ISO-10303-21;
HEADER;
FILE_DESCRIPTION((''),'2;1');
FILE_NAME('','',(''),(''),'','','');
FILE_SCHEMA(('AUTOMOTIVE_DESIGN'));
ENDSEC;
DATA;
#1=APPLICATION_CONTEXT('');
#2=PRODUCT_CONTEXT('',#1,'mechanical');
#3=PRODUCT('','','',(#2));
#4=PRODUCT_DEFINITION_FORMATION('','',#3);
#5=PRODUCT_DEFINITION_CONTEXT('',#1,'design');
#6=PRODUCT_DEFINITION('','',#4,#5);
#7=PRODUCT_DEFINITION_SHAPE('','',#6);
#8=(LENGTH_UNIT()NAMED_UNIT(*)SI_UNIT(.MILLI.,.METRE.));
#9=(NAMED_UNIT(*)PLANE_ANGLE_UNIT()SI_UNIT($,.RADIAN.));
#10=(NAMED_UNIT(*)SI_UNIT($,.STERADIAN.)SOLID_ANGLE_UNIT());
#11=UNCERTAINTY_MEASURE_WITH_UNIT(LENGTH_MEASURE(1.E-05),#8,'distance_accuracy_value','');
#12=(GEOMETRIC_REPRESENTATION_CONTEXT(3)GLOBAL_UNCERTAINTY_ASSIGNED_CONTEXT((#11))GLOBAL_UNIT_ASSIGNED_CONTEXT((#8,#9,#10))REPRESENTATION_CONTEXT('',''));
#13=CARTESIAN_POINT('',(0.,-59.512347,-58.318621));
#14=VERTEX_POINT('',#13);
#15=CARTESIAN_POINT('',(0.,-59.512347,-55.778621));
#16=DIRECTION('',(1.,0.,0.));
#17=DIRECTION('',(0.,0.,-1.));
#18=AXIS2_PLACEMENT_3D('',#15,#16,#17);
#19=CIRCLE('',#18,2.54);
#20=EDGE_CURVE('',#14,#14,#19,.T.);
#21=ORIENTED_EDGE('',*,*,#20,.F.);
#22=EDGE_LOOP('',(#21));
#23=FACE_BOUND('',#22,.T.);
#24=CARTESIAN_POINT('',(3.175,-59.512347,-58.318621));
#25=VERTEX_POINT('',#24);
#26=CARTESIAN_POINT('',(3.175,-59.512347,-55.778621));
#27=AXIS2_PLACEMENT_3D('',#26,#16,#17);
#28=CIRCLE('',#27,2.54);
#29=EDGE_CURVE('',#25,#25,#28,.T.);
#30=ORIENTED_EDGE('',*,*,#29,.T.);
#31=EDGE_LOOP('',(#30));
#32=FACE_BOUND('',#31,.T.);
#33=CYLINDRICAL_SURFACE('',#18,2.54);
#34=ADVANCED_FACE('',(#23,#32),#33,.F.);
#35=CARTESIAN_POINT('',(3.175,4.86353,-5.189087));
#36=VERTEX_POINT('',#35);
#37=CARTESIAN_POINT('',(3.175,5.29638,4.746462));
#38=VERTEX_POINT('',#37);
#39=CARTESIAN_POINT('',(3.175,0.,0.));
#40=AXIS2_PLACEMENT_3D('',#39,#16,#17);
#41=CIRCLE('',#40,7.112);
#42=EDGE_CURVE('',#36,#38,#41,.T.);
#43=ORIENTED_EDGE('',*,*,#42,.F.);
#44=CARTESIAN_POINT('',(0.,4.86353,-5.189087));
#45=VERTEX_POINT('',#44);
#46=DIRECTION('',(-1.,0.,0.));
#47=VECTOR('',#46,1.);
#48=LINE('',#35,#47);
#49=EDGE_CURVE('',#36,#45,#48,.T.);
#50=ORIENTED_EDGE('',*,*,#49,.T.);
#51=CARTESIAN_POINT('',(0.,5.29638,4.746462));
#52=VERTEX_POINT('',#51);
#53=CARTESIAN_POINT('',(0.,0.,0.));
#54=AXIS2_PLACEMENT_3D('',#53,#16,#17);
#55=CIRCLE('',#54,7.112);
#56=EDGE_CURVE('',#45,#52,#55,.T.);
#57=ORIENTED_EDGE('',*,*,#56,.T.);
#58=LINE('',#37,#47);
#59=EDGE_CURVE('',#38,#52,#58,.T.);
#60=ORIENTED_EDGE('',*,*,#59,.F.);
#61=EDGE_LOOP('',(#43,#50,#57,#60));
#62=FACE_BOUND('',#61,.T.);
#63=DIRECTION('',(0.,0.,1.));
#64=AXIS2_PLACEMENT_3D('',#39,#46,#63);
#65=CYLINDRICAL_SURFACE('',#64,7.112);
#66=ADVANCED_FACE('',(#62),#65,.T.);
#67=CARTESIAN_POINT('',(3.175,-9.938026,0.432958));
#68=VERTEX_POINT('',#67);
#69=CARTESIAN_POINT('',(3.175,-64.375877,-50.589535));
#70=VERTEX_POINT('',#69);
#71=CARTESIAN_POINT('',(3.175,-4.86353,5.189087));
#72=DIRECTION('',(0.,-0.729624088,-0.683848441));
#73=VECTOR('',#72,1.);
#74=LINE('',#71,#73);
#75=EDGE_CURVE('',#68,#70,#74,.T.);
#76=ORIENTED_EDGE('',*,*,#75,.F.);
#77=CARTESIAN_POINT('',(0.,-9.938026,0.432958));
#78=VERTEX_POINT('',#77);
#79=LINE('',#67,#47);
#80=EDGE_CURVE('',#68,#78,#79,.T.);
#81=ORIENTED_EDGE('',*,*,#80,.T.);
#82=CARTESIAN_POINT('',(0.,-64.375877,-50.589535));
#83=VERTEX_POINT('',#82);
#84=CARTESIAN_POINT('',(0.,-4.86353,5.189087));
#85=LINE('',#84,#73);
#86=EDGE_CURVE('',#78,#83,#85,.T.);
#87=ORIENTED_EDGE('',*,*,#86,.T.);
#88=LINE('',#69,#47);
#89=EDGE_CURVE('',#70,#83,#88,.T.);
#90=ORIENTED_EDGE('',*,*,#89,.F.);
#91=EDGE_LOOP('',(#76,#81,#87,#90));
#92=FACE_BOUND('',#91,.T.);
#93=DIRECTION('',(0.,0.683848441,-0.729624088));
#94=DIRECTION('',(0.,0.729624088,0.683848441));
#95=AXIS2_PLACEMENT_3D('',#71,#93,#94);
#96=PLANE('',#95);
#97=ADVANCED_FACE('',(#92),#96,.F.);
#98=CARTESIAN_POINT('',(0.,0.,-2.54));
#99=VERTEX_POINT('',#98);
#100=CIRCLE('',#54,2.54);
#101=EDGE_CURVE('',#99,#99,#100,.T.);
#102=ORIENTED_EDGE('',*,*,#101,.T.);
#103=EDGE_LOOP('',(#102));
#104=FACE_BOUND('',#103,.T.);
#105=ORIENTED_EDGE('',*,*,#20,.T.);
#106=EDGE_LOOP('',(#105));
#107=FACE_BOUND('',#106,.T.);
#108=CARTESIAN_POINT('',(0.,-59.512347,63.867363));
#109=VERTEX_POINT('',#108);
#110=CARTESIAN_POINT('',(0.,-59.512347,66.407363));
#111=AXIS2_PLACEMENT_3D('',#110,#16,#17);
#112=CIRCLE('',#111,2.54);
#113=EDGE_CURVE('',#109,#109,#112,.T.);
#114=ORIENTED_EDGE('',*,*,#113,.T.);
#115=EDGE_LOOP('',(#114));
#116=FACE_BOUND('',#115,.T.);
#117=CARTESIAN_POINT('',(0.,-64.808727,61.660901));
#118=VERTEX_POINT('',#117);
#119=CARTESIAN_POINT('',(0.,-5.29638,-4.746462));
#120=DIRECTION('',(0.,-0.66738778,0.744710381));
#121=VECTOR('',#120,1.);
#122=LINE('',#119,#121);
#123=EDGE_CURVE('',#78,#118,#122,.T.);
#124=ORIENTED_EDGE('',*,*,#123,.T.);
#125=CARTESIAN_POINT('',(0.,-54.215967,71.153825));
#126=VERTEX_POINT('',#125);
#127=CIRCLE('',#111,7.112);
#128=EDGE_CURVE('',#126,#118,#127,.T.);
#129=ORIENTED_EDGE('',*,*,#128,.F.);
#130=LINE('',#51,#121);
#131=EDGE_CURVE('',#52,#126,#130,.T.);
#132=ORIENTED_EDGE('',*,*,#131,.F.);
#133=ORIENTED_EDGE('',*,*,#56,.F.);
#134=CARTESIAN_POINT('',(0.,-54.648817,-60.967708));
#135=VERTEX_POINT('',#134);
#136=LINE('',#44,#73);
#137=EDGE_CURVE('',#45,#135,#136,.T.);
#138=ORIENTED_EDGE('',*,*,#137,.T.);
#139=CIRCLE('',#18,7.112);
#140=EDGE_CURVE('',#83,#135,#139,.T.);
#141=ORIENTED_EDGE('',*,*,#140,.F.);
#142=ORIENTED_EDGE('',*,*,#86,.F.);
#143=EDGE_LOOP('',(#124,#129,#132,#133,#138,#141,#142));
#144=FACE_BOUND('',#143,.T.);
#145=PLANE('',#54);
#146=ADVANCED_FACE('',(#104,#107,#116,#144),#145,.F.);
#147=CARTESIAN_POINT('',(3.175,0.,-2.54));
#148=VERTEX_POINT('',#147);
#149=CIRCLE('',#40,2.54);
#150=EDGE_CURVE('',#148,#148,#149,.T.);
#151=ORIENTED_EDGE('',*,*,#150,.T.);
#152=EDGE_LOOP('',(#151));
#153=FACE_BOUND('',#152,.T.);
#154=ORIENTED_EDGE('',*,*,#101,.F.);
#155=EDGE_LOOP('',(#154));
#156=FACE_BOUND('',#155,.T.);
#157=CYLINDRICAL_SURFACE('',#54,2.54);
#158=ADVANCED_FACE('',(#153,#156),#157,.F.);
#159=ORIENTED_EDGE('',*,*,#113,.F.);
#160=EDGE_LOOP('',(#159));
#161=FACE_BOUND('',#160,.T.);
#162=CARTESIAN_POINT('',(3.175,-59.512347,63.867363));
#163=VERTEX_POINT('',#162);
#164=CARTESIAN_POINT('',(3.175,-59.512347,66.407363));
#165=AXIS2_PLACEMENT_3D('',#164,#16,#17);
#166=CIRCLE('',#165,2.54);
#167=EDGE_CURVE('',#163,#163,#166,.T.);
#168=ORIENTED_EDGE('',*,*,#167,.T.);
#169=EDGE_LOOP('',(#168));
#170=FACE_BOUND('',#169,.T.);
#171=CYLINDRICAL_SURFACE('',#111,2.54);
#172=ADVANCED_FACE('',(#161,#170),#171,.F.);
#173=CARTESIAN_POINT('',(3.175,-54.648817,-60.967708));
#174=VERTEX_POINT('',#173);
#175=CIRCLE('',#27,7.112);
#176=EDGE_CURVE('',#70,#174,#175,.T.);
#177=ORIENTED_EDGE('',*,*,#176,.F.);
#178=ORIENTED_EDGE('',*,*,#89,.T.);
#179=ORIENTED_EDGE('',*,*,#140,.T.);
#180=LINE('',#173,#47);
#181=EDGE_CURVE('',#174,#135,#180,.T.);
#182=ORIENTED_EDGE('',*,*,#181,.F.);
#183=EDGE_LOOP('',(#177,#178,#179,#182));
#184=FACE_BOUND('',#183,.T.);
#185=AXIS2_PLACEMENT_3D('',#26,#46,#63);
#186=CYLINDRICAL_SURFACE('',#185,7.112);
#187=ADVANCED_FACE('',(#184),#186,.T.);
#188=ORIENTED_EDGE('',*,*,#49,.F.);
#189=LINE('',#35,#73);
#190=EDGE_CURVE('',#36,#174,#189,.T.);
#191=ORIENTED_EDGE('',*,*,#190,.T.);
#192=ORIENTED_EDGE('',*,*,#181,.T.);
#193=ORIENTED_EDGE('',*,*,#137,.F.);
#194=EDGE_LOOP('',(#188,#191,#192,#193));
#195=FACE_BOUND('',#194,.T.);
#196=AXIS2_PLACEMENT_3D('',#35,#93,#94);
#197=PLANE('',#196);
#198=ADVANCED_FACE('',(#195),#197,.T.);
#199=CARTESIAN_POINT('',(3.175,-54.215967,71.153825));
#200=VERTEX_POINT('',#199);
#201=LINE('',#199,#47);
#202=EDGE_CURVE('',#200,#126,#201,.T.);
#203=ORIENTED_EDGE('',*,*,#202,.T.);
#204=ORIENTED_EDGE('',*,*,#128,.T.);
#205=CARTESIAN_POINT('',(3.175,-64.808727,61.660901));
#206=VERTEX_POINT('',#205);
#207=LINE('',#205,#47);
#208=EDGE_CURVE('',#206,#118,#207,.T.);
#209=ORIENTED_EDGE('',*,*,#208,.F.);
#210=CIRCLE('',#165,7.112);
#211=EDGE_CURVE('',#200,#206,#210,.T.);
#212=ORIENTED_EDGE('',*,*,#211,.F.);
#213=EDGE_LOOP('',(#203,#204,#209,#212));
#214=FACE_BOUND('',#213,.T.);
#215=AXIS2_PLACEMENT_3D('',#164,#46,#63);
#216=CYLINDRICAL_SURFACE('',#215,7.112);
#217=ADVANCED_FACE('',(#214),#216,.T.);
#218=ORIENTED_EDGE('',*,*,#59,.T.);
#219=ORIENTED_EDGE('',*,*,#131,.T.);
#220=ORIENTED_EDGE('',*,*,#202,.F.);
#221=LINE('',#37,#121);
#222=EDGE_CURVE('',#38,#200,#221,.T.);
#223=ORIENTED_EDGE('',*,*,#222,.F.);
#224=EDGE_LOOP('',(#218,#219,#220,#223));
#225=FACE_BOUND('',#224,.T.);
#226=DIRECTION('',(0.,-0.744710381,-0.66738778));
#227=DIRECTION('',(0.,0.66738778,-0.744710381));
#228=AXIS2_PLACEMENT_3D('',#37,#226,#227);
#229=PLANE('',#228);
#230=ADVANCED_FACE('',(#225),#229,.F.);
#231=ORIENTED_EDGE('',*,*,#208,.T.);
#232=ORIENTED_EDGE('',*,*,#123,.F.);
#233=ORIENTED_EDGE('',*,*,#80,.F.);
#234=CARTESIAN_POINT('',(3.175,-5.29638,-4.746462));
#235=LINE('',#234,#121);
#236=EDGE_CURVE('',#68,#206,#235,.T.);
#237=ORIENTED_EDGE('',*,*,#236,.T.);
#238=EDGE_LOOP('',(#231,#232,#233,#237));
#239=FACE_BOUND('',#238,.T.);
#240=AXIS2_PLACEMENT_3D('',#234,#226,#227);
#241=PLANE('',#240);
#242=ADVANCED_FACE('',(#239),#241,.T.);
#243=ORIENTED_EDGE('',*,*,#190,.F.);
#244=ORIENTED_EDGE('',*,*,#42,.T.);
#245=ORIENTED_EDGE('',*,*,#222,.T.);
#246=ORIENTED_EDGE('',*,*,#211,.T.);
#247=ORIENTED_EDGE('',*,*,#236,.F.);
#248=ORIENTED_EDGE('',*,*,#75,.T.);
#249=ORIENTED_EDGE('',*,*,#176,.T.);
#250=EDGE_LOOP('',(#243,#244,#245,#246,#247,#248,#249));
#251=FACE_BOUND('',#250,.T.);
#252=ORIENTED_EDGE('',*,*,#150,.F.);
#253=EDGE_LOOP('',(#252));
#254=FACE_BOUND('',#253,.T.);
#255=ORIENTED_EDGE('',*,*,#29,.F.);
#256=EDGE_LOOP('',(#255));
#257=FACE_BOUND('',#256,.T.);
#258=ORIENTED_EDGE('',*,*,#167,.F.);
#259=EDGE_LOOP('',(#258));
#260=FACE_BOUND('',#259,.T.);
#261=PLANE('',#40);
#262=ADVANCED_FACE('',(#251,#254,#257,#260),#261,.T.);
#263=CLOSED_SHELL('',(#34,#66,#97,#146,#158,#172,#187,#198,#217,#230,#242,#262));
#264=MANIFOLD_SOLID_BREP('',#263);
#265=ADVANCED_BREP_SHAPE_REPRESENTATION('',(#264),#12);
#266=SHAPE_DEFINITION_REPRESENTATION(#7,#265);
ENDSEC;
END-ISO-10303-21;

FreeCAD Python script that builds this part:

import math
import FreeCAD as App
import Part
import Sketcher
from FreeCAD import Vector
Q = App.Units.Quantity

doc = App.newDocument("Part")
body = doc.addObject("PartDesign::Body", "Body")

# Sketch on YZ plane
sketch1 = doc.addObject("Sketcher::SketchObject", "Sketch")
body.addObject(sketch1)
sketch1.AttachmentSupport = (doc.YZ_Plane, [""])
sketch1.MapMode = "FlatFace"
sketch1.addGeometry([
    Part.LineSegment(Vector(-55, -61, 0), Vector(5, -5, 0)),  # 0
    Part.ArcOfCircle(Part.Circle(Vector(0, 0, 0), Vector(0, 0, 1), 7), math.radians(-47), math.radians(42)),  # 1
    Part.LineSegment(Vector(5, 5, 0), Vector(-54, 71, 0)),  # 2
    Part.ArcOfCircle(Part.Circle(Vector(-60, 66, 0), Vector(0, 0, 1), 7), math.radians(42), math.radians(222)),  # 3
    Part.LineSegment(Vector(-65, 62, 0), Vector(-10, 0, 0)),  # 4
    Part.LineSegment(Vector(-10, 0, 0), Vector(-64, -51, 0)),  # 5
    Part.ArcOfCircle(Part.Circle(Vector(-60, -56, 0), Vector(0, 0, 1), 7), math.radians(133), math.radians(313)),  # 6
], False)
sketch1.addConstraint([
    Sketcher.Constraint("Tangent", 0, 2, 1, 1),
    Sketcher.Constraint("Tangent", 1, 2, 2, 1),
    Sketcher.Constraint("Tangent", 2, 2, 3, 1),
    Sketcher.Constraint("Tangent", 3, 2, 4, 1),
    Sketcher.Constraint("Coincident", 4, 2, 5, 1),
    Sketcher.Constraint("Tangent", 5, 2, 6, 1),
    Sketcher.Constraint("Tangent", 6, 2, 0, 1),
    Sketcher.Constraint("Coincident", 1, 3, -1, 1),
    Sketcher.Constraint("Equal", 1, 3),
    Sketcher.Constraint("Equal", 3, 6),
    Sketcher.Constraint("Parallel", 2, 4),
    Sketcher.Constraint("Parallel", 0, 5),
    Sketcher.Constraint("Vertical", 3, 3, 6, 3),
    Sketcher.Constraint("Radius", 1, Q("0.28 in")),
    Sketcher.Constraint("DistanceY", -1, 1, 3, 2, 61.660901),
    Sketcher.Constraint("DistanceX", 3, 2, 4, 2, 54.870701),
    Sketcher.Constraint("Distance", 4, 82.21712),
])
pad1 = doc.addObject("PartDesign::Pad", "Pad")
body.addObject(pad1)
pad1.Profile = sketch1
pad1.Length = Q("0.125 in")

# Sketch on YZ plane
sketch2 = doc.addObject("Sketcher::SketchObject", "Sketch001")
body.addObject(sketch2)
sketch2.AttachmentSupport = (doc.YZ_Plane, [""])
sketch2.MapMode = "FlatFace"
sketch2.AttachmentOffset = App.Placement(Vector(0, 0, 0.125 * 25.4), App.Rotation())
sketch2.addGeometry([
    Part.Circle(Vector(0, 0, 0), Vector(0, 0, 1), 2.5),
    Part.Circle(Vector(-59.5, 66.4, 0), Vector(0, 0, 1), 2.5),
    Part.Circle(Vector(-59.5, -55.8, 0), Vector(0, 0, 1), 2.5),
], False)
sketch2.addConstraint([
    Sketcher.Constraint("Coincident", 0, 3, -1, 1),
    Sketcher.Constraint("Equal", 0, 1),
    Sketcher.Constraint("Equal", 1, 2),
    Sketcher.Constraint("Vertical", 1, 3, 2, 3),
    Sketcher.Constraint("Diameter", 0, Q("0.2 in")),
    Sketcher.Constraint("DistanceY", 2, 3, -1, 1, 55.778621),
    Sketcher.Constraint("DistanceX", 1, 3, -1, 1, 59.512347),
    Sketcher.Constraint("DistanceY", -1, 1, 1, 3, 66.407363),
])
pocket1 = doc.addObject("PartDesign::Pocket", "Pocket")
body.addObject(pocket1)
pocket1.Profile = sketch2
pocket1.Type = "ThroughAll"

doc.recompute()
